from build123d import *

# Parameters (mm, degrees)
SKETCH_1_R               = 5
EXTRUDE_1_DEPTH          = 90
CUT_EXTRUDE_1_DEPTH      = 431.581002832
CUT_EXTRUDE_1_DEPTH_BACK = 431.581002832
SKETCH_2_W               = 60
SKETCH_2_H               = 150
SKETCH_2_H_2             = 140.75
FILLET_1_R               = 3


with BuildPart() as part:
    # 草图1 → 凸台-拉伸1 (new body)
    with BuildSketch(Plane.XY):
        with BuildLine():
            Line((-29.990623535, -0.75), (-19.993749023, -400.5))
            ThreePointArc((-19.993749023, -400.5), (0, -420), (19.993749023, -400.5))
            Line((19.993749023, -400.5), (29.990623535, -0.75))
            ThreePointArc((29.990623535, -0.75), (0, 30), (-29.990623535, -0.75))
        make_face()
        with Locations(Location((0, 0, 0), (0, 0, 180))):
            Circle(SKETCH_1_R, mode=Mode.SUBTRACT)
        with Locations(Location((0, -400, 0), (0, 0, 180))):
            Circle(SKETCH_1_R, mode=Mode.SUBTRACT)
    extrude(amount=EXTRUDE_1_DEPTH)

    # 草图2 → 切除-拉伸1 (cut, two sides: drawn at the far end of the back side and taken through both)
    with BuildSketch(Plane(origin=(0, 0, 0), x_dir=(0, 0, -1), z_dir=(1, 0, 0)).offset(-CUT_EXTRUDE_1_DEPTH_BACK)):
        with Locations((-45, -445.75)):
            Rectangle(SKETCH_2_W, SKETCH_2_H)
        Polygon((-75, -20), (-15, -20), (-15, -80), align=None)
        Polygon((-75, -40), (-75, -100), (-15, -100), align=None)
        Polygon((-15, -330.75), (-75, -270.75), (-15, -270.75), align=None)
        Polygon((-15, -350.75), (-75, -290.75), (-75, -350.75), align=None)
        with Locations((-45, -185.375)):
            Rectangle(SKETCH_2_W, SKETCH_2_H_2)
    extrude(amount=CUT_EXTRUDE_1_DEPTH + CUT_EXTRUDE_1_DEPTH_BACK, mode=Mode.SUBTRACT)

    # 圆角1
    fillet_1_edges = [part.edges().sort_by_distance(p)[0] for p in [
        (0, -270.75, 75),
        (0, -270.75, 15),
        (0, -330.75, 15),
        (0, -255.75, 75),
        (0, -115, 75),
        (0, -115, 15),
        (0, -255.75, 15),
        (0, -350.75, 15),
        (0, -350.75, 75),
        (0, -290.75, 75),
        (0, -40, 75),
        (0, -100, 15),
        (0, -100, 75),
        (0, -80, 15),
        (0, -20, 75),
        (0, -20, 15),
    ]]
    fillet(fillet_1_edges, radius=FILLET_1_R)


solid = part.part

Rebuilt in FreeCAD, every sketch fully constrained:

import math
import FreeCAD as App
import Part
import Sketcher


def edges_at(feature, points):
    """Names of the edges that pass closest to the given points."""
    edges = feature.Shape.Edges
    near = lambda p: min(range(len(edges)), key=lambda i: edges[i].distToShape(Part.Vertex(*p))[0])
    return sorted({f"Edge{near(p) + 1}" for p in points})


def add_polygon(sketch, points):
    """Adds a closed chain of lines whose ends are joined by coincident constraints."""
    first, n = sketch.GeometryCount, len(points)
    for a, b in zip(points, points[1:] + points[:1]):
        sketch.addGeometry(Part.LineSegment(App.Vector(*a, 0), App.Vector(*b, 0)), False)
    for i in range(n):
        sketch.addConstraint(Sketcher.Constraint("Coincident", first + i, 2, first + (i + 1) % n, 1))

doc = App.newDocument("Part")
body = doc.addObject("PartDesign::Body", "Body")

# Sketch on XY plane
sketch1 = body.newObject("Sketcher::SketchObject", "Sketch")
sketch1.AttachmentSupport = (doc.getObject("XY_Plane"), [""])
sketch1.MapMode = "FlatFace"
sketch1.addGeometry(Part.LineSegment(App.Vector(-30, -1, 0), App.Vector(-20, -400, 0)), False)
sketch1.addGeometry(Part.ArcOfCircle(Part.Circle(App.Vector(0, -400, 0), App.Vector(0, 0, 1), 20), math.radians(-179), math.radians(-1)), False)
sketch1.addGeometry(Part.LineSegment(App.Vector(20, -400, 0), App.Vector(30, -1, 0)), False)
sketch1.addGeometry(Part.ArcOfCircle(Part.Circle(App.Vector(0, 0, 0), App.Vector(0, 0, 1), 30), math.radians(-1), math.radians(181)), False)
sketch1.addGeometry(Part.Circle(App.Vector(0, -400, 0), App.Vector(0, 0, 1), 5), False)
sketch1.addGeometry(Part.Circle(App.Vector(0, 0, 0), App.Vector(0, 0, 1), 5), False)
sketch1.addConstraint(Sketcher.Constraint("Tangent", 0, 2, 1, 1))
sketch1.addConstraint(Sketcher.Constraint("Tangent", 1, 2, 2, 1))
sketch1.addConstraint(Sketcher.Constraint("Tangent", 2, 2, 3, 1))
sketch1.addConstraint(Sketcher.Constraint("Tangent", 3, 2, 0, 1))
sketch1.addConstraint(Sketcher.Constraint("Coincident", 3, 3, -1, 1))
sketch1.addConstraint(Sketcher.Constraint("Coincident", 5, 3, -1, 1))
sketch1.addConstraint(Sketcher.Constraint("Coincident", 4, 3, 1, 3))
sketch1.addConstraint(Sketcher.Constraint("Equal", 4, 5))
sketch1.addConstraint(Sketcher.Constraint("PointOnObject", 1, 3, -2))
sketch1.addConstraint(Sketcher.Constraint("Diameter", 4, 10.0))
sketch1.addConstraint(Sketcher.Constraint("Radius", 1, 20.0))
sketch1.addConstraint(Sketcher.Constraint("Radius", 3, 30.0))
sketch1.addConstraint(Sketcher.Constraint("DistanceY", 1, 3, -1, 1, 400.0))
pad1 = body.newObject("PartDesign::Pad", "Pad")
pad1.Profile = sketch1
pad1.Length = 90

# Sketch on YZ plane
sketch2 = body.newObject("Sketcher::SketchObject", "Sketch001")
sketch2.AttachmentSupport = (doc.getObject("YZ_Plane"), [""])
sketch2.MapMode = "FlatFace"
add_polygon(sketch2, [(-371, 75), (-521, 75), (-521, 15), (-371, 15)])  # lines 0-3
add_polygon(sketch2, [(-20, 15), (-20, 75), (-80, 15)])  # lines 4-6
add_polygon(sketch2, [(-40, 75), (-100, 75), (-100, 15)])  # lines 7-9
add_polygon(sketch2, [(-271, 75), (-331, 15), (-271, 15)])  # lines 10-12
add_polygon(sketch2, [(-351, 15), (-291, 75), (-351, 75)])  # lines 13-15
add_polygon(sketch2, [(-115, 75), (-256, 75), (-256, 15), (-115, 15)])  # lines 16-19
sketch2.addConstraint(Sketcher.Constraint("Horizontal", 0))
sketch2.addConstraint(Sketcher.Constraint("Vertical", 1))
sketch2.addConstraint(Sketcher.Constraint("Horizontal", 2))
sketch2.addConstraint(Sketcher.Constraint("Vertical", 3))
sketch2.addConstraint(Sketcher.Constraint("Vertical", 4))
sketch2.addConstraint(Sketcher.Constraint("Horizontal", 6))
sketch2.addConstraint(Sketcher.Constraint("Horizontal", 7))
sketch2.addConstraint(Sketcher.Constraint("Vertical", 8))
sketch2.addConstraint(Sketcher.Constraint("Horizontal", 11))
sketch2.addConstraint(Sketcher.Constraint("Vertical", 12))
sketch2.addConstraint(Sketcher.Constraint("Horizontal", 14))
sketch2.addConstraint(Sketcher.Constraint("Vertical", 15))
sketch2.addConstraint(Sketcher.Constraint("Horizontal", 16))
sketch2.addConstraint(Sketcher.Constraint("Vertical", 17))
sketch2.addConstraint(Sketcher.Constraint("Horizontal", 18))
sketch2.addConstraint(Sketcher.Constraint("Vertical", 19))
sketch2.addConstraint(Sketcher.Constraint("Parallel", 5, 9))
sketch2.addConstraint(Sketcher.Constraint("Parallel", 9, 10))
sketch2.addConstraint(Sketcher.Constraint("Parallel", 10, 13))
sketch2.addConstraint(Sketcher.Constraint("Horizontal", 3, 2, 4, 2))
sketch2.addConstraint(Sketcher.Constraint("Horizontal", 2, 2, 5, 2))
sketch2.addConstraint(Sketcher.Constraint("Horizontal", 4, 2, 7, 2))
sketch2.addConstraint(Sketcher.Constraint("Horizontal", 6, 2, 8, 2))
sketch2.addConstraint(Sketcher.Constraint("Horizontal", 8, 2, 10, 2))
sketch2.addConstraint(Sketcher.Constraint("Horizontal", 9, 2, 12, 2))
sketch2.addConstraint(Sketcher.Constraint("Horizontal", 12, 2, 13, 2))
sketch2.addConstraint(Sketcher.Constraint("Horizontal", 11, 2, 15, 2))
sketch2.addConstraint(Sketcher.Constraint("Horizontal", 14, 2, 16, 2))
sketch2.addConstraint(Sketcher.Constraint("Horizontal", 15, 2, 17, 2))
sketch2.addConstraint(Sketcher.Constraint("Equal", 14, 1))
sketch2.addConstraint(Sketcher.Constraint("DistanceX", 0, 2, 0, 1, 150.0))
sketch2.addConstraint(Sketcher.Constraint("DistanceX", 6, 1, 6, 2, 60.0))
sketch2.addConstraint(Sketcher.Constraint("DistanceY", -1, 1, 0, 2, 75.0))
sketch2.addConstraint(Sketcher.Constraint("DistanceX", 4, 2, -1, 1, 20.0))
sketch2.addConstraint(Sketcher.Constraint("DistanceX", 7, 2, -1, 1, 100.0))
sketch2.addConstraint(Sketcher.Constraint("DistanceX", 18, 2, -1, 1, 115.0))
sketch2.addConstraint(Sketcher.Constraint("DistanceX", 2, 2, 10, 2, 40.0))
sketch2.addConstraint(Sketcher.Constraint("DistanceX", 13, 2, 12, 2, 20.0))
sketch2.addConstraint(Sketcher.Constraint("DistanceX", 12, 2, 16, 2, 15.0))
sketch2.addConstraint(Sketcher.Constraint("DistanceX", 16, 2, 16, 1, 140.75))
pocket1 = body.newObject("PartDesign::Pocket", "Pocket")
pocket1.Profile = sketch2
pocket1.Type = "ThroughAll"
pocket1.Midplane = True
doc.recompute()

fillet = body.newObject("PartDesign::Fillet", "Fillet")
fillet.Base = (pocket1, edges_at(pocket1, [
    (0, -270.75, 75),
    (0, -270.75, 15),
    (0, -330.75, 15),
    (0, -255.75, 75),
    (0, -115, 75),
    (0, -115, 15),
    (0, -255.75, 15),
    (0, -350.75, 15),
    (0, -350.75, 75),
    (0, -290.75, 75),
    (0, -40, 75),
    (0, -100, 15),
    (0, -100, 75),
    (0, -80, 15),
    (0, -20, 75),
    (0, -20, 15),
]))
fillet.Radius = 3

doc.recompute()
